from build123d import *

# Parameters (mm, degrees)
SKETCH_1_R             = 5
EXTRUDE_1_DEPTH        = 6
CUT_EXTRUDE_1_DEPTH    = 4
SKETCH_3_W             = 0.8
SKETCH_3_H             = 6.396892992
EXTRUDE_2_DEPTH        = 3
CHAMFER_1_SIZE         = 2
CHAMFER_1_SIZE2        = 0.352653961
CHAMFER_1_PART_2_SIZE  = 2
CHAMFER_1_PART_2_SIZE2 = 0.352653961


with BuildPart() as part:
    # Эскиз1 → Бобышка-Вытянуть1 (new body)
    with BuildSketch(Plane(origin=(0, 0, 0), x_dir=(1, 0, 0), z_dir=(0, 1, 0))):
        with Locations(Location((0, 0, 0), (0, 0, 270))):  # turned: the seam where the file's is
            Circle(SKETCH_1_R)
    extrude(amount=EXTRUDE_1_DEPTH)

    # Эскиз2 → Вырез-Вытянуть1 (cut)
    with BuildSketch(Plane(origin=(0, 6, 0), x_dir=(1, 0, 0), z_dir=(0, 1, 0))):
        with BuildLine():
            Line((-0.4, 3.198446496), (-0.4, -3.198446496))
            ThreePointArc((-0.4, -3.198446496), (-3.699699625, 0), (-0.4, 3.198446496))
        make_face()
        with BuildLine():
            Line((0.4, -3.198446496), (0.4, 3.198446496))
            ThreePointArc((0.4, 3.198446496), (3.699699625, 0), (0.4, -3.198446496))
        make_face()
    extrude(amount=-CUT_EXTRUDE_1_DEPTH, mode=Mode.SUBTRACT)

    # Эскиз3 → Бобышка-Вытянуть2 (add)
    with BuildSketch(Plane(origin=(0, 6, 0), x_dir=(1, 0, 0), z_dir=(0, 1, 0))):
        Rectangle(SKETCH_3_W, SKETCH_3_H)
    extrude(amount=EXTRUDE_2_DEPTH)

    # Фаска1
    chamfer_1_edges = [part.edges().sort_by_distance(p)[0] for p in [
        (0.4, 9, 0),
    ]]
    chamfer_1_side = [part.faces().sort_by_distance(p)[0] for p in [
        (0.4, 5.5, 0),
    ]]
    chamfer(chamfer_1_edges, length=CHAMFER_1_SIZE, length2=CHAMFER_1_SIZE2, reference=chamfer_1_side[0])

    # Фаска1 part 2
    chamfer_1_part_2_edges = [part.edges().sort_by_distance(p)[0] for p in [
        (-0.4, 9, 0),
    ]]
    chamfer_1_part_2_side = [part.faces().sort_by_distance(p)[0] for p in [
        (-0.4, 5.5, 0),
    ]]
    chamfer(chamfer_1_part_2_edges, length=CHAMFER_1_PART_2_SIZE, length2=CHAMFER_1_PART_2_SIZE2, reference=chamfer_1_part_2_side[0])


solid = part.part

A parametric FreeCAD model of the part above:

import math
import FreeCAD as App
import Part
import Sketcher


def edges_at(feature, points):
    """Names of the edges that pass closest to the given points."""
    edges = feature.Shape.Edges
    near = lambda p: min(range(len(edges)), key=lambda i: edges[i].distToShape(Part.Vertex(*p))[0])
    return sorted({f"Edge{near(p) + 1}" for p in points})


def add_polygon(sketch, points):
    """Adds a closed chain of lines whose ends are joined by coincident constraints."""
    first, n = sketch.GeometryCount, len(points)
    for a, b in zip(points, points[1:] + points[:1]):
        sketch.addGeometry(Part.LineSegment(App.Vector(*a, 0), App.Vector(*b, 0)), False)
    for i in range(n):
        sketch.addConstraint(Sketcher.Constraint("Coincident", first + i, 2, first + (i + 1) % n, 1))

doc = App.newDocument("Part")
body = doc.addObject("PartDesign::Body", "Body")

# Sketch on XZ plane
sketch1 = body.newObject("Sketcher::SketchObject", "Sketch")
sketch1.AttachmentSupport = (doc.getObject("XZ_Plane"), [""])
sketch1.MapMode = "FlatFace"
sketch1.addGeometry(Part.Circle(App.Vector(0, 0, 0), App.Vector(0, 0, 1), 5), False)
sketch1.addConstraint(Sketcher.Constraint("Coincident", 0, 3, -1, 1))
sketch1.addConstraint(Sketcher.Constraint("Diameter", 0, 10.0))
pad1 = body.newObject("PartDesign::Pad", "Pad")
pad1.Profile = sketch1
pad1.Length = 6
pad1.Reversed = True

# Sketch on XZ plane
sketch2 = body.newObject("Sketcher::SketchObject", "Sketch001")
sketch2.AttachmentSupport = (doc.getObject("XZ_Plane"), [""])
sketch2.MapMode = "FlatFace"
sketch2.AttachmentOffset = App.Placement(App.Vector(0, 0, -6), App.Rotation())
sketch2.addGeometry(Part.LineSegment(App.Vector(-0.4, 3.2, 0), App.Vector(-0.4, -3.2, 0)), False)
sketch2.addGeometry(Part.ArcOfCircle(Part.Circle(App.Vector(-0.5, 0, 0), App.Vector(0, 0, 1), 3.2), math.radians(88), math.radians(272)), False)
sketch2.addGeometry(Part.LineSegment(App.Vector(0.4, -3.2, 0), App.Vector(0.4, 3.2, 0)), False)
sketch2.addGeometry(Part.ArcOfCircle(Part.Circle(App.Vector(0.5, 0, 0), App.Vector(0, 0, 1), 3.2), math.radians(-92), math.radians(92)), False)
sketch2.addConstraint(Sketcher.Constraint("Coincident", 0, 1, 1, 1))
sketch2.addConstraint(Sketcher.Constraint("Coincident", 1, 2, 0, 2))
sketch2.addConstraint(Sketcher.Constraint("Coincident", 2, 1, 3, 1))
sketch2.addConstraint(Sketcher.Constraint("Coincident", 3, 2, 2, 2))
sketch2.addConstraint(Sketcher.Constraint("Vertical", 0))
sketch2.addConstraint(Sketcher.Constraint("Vertical", 2))
sketch2.addConstraint(Sketcher.Constraint("Equal", 1, 3))
sketch2.addConstraint(Sketcher.Constraint("Symmetric", 1, 3, 3, 3, -1, 1))
sketch2.addConstraint(Sketcher.Constraint("Symmetric", 1, 2, 2, 1, -2))
sketch2.addConstraint(Sketcher.Constraint("Radius", 1, 3.2))
sketch2.addConstraint(Sketcher.Constraint("DistanceX", 0, 1, -1, 1, 0.4))
sketch2.addConstraint(Sketcher.Constraint("DistanceX", 1, 3, -1, 1, 0.4997))
pocket1 = body.newObject("PartDesign::Pocket", "Pocket")
pocket1.Profile = sketch2
pocket1.Length = 4
pocket1.Reversed = True

# Sketch on XZ plane
sketch3 = body.newObject("Sketcher::SketchObject", "Sketch002")
sketch3.AttachmentSupport = (doc.getObject("XZ_Plane"), [""])
sketch3.MapMode = "FlatFace"
sketch3.AttachmentOffset = App.Placement(App.Vector(0, 0, -6), App.Rotation())
add_polygon(sketch3, [(-0.4, -3.2), (-0.4, 3.2), (0.4, 3.2), (0.4, -3.2)])  # lines 0-3
sketch3.addConstraint(Sketcher.Constraint("Vertical", 0))
sketch3.addConstraint(Sketcher.Constraint("Horizontal", 1))
sketch3.addConstraint(Sketcher.Constraint("Vertical", 2))
sketch3.addConstraint(Sketcher.Constraint("Horizontal", 3))
sketch3.addConstraint(Sketcher.Constraint("Symmetric", 0, 2, 2, 2, -1, 1))
sketch3.addConstraint(Sketcher.Constraint("DistanceX", 1, 1, 1, 2, 0.8))
sketch3.addConstraint(Sketcher.Constraint("DistanceY", 0, 1, 0, 2, 6.396893))
pad2 = body.newObject("PartDesign::Pad", "Pad001")
pad2.Profile = sketch3
pad2.Length = 3
pad2.Reversed = True
doc.recompute()

chamfer = body.newObject("PartDesign::Chamfer", "Chamfer")
chamfer.Base = (pad2, edges_at(pad2, [(0.4, 9, 0)]))
chamfer.ChamferType = "Two distances"
chamfer.Size = 2
chamfer.Size2 = 0.352654
chamfer.FlipDirection = True
doc.recompute()

chamfer2 = body.newObject("PartDesign::Chamfer", "Chamfer001")
chamfer2.Base = (chamfer, edges_at(chamfer, [(-0.4, 9, 0)]))
chamfer2.ChamferType = "Two distances"
chamfer2.Size = 2
chamfer2.Size2 = 0.352654
chamfer2.FlipDirection = True

doc.recompute()
